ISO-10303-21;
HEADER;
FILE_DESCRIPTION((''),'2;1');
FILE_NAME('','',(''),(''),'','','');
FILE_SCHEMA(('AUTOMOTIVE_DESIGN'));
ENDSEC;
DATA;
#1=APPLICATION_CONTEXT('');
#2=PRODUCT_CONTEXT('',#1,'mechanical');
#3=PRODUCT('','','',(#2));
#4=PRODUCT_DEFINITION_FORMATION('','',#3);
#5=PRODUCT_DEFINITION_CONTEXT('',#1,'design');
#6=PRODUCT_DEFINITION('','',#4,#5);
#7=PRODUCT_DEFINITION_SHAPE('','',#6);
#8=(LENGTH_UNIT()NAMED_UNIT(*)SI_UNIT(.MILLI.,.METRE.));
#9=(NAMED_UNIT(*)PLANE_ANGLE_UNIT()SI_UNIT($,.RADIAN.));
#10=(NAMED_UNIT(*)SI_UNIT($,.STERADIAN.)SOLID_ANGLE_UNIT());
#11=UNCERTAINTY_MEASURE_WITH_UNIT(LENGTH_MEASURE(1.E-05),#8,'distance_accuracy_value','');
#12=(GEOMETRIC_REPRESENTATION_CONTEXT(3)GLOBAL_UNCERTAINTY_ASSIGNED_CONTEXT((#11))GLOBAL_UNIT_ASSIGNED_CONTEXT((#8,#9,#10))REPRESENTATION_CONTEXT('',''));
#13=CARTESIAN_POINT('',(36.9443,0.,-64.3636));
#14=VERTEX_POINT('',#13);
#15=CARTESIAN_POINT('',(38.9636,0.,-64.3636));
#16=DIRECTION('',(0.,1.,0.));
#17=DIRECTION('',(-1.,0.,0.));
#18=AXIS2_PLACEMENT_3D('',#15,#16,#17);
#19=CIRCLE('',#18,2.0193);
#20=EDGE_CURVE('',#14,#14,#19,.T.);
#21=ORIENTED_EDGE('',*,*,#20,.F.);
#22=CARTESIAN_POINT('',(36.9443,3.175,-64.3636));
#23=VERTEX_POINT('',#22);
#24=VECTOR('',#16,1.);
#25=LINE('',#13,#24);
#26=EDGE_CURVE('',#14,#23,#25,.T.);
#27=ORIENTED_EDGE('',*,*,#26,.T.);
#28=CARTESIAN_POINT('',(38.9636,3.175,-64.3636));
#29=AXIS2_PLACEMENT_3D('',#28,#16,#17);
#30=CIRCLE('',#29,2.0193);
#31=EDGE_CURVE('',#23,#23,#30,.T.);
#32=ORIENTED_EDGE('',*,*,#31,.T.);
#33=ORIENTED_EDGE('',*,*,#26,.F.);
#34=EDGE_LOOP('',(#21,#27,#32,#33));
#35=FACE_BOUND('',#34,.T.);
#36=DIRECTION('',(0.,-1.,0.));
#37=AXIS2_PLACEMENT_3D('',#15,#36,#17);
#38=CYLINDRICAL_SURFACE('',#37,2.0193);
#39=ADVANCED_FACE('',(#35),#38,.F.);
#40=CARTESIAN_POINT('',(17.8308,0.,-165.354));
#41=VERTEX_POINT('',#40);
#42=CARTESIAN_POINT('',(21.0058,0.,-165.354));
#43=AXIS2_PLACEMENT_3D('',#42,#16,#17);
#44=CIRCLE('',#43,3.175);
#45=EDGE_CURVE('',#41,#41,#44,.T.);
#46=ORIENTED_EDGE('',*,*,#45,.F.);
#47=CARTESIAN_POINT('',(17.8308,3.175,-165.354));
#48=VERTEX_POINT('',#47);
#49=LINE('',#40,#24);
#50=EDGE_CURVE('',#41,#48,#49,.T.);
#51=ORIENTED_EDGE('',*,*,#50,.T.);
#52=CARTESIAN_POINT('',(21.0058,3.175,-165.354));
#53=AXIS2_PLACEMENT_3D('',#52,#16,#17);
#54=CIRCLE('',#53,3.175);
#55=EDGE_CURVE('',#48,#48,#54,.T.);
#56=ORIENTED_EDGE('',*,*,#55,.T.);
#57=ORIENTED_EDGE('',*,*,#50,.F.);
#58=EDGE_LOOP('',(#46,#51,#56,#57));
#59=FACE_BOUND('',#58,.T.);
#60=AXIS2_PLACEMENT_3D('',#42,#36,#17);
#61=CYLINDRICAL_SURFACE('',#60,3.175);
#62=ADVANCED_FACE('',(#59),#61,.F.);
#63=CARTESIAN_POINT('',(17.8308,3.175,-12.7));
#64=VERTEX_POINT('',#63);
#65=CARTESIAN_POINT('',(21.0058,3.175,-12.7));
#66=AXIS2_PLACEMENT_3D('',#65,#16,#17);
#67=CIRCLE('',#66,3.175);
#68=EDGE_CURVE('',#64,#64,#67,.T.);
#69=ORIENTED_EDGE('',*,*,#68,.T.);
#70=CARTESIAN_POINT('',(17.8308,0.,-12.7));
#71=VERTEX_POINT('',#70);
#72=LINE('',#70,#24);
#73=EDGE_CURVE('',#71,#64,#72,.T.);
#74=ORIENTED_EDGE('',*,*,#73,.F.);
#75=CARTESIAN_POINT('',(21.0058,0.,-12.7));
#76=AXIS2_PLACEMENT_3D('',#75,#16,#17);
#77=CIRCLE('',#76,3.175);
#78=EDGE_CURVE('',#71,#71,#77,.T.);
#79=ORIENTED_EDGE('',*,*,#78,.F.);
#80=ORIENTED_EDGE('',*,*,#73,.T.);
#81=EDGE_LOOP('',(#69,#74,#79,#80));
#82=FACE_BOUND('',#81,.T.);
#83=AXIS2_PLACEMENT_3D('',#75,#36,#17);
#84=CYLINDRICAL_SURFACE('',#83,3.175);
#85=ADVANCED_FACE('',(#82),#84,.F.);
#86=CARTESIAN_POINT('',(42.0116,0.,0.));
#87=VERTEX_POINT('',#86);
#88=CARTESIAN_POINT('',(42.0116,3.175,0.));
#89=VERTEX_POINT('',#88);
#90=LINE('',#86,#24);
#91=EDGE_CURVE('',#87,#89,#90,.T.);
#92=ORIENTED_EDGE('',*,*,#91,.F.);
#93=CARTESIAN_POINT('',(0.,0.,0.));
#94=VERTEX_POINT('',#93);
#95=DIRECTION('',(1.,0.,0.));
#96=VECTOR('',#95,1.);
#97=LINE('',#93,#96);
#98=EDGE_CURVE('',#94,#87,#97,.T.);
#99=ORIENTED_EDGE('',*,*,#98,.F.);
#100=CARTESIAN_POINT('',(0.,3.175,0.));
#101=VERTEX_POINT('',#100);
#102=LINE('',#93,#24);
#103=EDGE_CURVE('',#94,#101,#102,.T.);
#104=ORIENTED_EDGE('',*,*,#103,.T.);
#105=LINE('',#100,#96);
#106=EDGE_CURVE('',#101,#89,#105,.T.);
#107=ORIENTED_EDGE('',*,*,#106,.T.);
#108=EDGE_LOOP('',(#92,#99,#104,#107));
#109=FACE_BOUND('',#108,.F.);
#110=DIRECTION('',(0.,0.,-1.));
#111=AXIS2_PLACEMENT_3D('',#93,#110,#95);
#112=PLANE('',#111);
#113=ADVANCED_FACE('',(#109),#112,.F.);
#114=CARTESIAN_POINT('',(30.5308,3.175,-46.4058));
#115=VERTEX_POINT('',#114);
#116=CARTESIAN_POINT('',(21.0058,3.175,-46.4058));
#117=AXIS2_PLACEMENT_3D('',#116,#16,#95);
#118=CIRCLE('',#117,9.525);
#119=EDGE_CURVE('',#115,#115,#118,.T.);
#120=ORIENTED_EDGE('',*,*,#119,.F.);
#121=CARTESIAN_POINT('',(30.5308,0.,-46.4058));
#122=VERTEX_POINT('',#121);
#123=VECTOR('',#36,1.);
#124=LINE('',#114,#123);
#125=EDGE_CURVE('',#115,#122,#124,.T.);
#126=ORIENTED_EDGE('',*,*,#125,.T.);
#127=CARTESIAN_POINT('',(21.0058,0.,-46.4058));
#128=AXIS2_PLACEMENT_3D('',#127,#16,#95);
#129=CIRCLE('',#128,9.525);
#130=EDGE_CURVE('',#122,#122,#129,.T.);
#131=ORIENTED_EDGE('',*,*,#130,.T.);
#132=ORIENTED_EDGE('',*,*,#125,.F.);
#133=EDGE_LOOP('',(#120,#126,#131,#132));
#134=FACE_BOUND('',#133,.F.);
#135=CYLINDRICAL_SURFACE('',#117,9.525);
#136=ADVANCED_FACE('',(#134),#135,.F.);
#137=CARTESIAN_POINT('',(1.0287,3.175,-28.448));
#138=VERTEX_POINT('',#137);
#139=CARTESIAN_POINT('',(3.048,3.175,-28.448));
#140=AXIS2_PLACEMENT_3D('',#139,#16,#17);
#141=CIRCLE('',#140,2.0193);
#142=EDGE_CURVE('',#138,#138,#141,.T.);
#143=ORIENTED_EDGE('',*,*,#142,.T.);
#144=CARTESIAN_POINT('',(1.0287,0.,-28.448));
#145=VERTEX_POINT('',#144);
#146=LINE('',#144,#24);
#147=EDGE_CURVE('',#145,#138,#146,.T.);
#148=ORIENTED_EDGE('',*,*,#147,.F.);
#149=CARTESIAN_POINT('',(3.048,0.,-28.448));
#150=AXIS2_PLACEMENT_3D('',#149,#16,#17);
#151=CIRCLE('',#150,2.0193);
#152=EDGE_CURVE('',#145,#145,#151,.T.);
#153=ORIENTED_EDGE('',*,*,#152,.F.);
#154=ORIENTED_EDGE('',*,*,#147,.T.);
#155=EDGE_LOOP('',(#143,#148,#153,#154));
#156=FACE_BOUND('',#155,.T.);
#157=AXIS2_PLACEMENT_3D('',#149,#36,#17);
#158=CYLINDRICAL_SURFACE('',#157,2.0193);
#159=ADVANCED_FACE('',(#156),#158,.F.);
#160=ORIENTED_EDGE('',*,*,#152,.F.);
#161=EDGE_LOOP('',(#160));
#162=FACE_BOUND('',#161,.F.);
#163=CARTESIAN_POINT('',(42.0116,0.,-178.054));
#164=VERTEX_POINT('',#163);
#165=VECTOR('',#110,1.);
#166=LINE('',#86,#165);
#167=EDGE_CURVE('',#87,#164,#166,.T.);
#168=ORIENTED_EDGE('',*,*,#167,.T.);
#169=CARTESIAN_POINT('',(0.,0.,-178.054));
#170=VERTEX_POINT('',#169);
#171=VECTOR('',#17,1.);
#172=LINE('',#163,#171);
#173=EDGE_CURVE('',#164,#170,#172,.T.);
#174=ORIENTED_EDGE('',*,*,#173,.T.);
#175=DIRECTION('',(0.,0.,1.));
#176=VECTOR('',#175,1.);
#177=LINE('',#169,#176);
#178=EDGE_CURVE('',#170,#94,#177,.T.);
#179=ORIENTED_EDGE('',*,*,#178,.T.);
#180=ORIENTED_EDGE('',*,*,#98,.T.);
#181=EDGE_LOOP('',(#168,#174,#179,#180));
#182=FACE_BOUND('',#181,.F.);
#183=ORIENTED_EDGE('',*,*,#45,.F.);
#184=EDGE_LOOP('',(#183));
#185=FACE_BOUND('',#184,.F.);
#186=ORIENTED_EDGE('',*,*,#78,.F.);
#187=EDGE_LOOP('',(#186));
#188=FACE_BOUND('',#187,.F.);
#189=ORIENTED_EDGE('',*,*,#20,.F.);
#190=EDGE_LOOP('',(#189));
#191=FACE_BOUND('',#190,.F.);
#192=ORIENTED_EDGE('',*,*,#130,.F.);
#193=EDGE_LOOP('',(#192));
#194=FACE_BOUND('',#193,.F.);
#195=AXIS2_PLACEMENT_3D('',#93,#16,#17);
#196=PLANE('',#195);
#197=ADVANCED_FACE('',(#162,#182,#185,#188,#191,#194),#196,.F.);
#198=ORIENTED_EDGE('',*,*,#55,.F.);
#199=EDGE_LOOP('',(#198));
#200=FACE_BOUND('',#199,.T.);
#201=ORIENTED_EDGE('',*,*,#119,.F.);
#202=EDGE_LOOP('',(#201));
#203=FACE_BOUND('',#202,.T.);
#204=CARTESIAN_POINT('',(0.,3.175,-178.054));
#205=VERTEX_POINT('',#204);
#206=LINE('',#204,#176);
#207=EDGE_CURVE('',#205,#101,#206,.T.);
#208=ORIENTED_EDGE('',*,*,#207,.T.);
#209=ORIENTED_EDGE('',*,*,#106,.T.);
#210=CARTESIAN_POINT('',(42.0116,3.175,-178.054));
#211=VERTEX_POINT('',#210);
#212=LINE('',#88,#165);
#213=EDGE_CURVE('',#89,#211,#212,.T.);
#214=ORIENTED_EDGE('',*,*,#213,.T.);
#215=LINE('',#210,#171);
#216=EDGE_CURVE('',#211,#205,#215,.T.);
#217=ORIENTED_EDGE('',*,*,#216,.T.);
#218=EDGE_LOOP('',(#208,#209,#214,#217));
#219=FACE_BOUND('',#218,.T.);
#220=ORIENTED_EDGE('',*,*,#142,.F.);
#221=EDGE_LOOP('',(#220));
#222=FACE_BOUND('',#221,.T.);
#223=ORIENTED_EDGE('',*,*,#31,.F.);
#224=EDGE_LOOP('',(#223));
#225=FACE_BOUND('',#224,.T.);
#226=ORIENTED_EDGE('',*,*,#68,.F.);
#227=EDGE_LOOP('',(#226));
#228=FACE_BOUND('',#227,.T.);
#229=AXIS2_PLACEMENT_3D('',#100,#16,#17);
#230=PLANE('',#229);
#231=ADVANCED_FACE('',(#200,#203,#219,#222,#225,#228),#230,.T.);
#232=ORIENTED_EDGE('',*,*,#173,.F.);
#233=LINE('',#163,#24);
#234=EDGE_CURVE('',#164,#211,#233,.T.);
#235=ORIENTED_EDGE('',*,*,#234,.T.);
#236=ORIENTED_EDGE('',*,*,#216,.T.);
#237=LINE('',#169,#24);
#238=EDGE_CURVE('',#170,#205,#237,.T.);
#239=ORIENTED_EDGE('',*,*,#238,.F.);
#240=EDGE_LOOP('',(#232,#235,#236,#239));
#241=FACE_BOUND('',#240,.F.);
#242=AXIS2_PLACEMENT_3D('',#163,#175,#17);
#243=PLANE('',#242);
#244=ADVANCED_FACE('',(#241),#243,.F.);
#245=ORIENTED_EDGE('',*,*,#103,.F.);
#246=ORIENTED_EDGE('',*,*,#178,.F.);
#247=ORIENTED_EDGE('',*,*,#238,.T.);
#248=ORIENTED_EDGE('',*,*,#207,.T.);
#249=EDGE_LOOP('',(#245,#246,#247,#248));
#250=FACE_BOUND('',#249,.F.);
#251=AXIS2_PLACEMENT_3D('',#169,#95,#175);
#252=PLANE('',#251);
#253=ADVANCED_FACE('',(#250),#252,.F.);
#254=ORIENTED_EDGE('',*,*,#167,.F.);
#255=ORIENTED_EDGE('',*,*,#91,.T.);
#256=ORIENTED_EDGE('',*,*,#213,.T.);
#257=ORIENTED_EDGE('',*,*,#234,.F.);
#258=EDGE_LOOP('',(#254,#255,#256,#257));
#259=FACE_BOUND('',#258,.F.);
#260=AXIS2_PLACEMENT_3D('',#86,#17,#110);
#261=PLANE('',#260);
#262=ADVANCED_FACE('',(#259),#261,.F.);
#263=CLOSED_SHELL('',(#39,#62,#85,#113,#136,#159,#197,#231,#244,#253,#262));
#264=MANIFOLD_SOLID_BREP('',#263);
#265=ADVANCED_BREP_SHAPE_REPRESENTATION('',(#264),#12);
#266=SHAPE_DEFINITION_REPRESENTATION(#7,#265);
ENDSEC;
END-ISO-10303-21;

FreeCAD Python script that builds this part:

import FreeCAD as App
import Part
import Sketcher
from FreeCAD import Vector
Q = App.Units.Quantity

doc = App.newDocument("Part")
body = doc.addObject("PartDesign::Body", "Body")

sketch1 = body.newObject("Sketcher::SketchObject", "Sketch")
sketch1.AttachmentSupport = (doc.getObject("XZ_Plane"), [""])
sketch1.MapMode = "FlatFace"
sketch1.addGeometry(Part.LineSegment(Vector(0, -178.054, 0), Vector(0, 0, 0)), False)
sketch1.addGeometry(Part.LineSegment(Vector(0, 0, 0), Vector(42.0116, 0, 0)), False)
sketch1.addGeometry(Part.LineSegment(Vector(42.0116, 0, 0), Vector(42.0116, -178.054, 0)), False)
sketch1.addGeometry(Part.LineSegment(Vector(42.0116, -178.054, 0), Vector(0, -178.054, 0)), False)
sketch1.addGeometry(Part.Circle(Vector(21.0058, -165.354, 0), Vector(0, 0, 1), 3.175), False)
sketch1.addGeometry(Part.Circle(Vector(38.9636, -64.3636, 0), Vector(0, 0, 1), 2.0193), False)
sketch1.addGeometry(Part.Circle(Vector(21.0058, -12.7, 0), Vector(0, 0, 1), 3.175), False)
sketch1.addGeometry(Part.Circle(Vector(3.048, -28.448, 0), Vector(0, 0, 1), 2.0193), False)
sketch1.addConstraint(Sketcher.Constraint("Coincident", 0, 2, 1, 1))
sketch1.addConstraint(Sketcher.Constraint("Coincident", 1, 2, 2, 1))
sketch1.addConstraint(Sketcher.Constraint("Coincident", 2, 2, 3, 1))
sketch1.addConstraint(Sketcher.Constraint("Coincident", 3, 2, 0, 1))
sketch1.addConstraint(Sketcher.Constraint("Vertical", 0))
sketch1.addConstraint(Sketcher.Constraint("Horizontal", 1))
sketch1.addConstraint(Sketcher.Constraint("Vertical", 2))
sketch1.addConstraint(Sketcher.Constraint("Horizontal", 3))
sketch1.addConstraint(Sketcher.Constraint("Coincident", 0, 2, -1, 1))
sketch1.addConstraint(Sketcher.Constraint("Equal", 4, 6))
sketch1.addConstraint(Sketcher.Constraint("Equal", 5, 7))
sketch1.addConstraint(Sketcher.Constraint("Vertical", 4, 3, 6, 3))
sketch1.addConstraint(Sketcher.Constraint("Diameter", 4, Q("0.25 in")))
sketch1.addConstraint(Sketcher.Constraint("Diameter", 5, Q("0.159 in")))
sketch1.addConstraint(Sketcher.Constraint("DistanceY", 0, 1, 0, 2, Q("7.01 in")))
sketch1.addConstraint(Sketcher.Constraint("DistanceY", 6, 3, -1, 1, Q("0.5 in")))
sketch1.addConstraint(Sketcher.Constraint("DistanceY", 2, 2, 4, 3, Q("0.5 in")))
sketch1.addConstraint(Sketcher.Constraint("DistanceX", 1, 1, 1, 2, Q("1.654 in")))
sketch1.addConstraint(Sketcher.Constraint("DistanceX", -1, 1, 7, 3, Q("0.12 in")))
sketch1.addConstraint(Sketcher.Constraint("DistanceY", 7, 3, -1, 1, Q("1.12 in")))
sketch1.addConstraint(Sketcher.Constraint("DistanceX", 5, 3, 1, 2, Q("0.12 in")))
sketch1.addConstraint(Sketcher.Constraint("DistanceX", -1, 1, 4, 3, Q("0.827 in")))
sketch1.addConstraint(Sketcher.Constraint("DistanceY", 5, 3, -1, 1, Q("2.534 in")))
pad1 = body.newObject("PartDesign::Pad", "Pad")
pad1.Profile = sketch1
pad1.Length = Q("0.125 in")
pad1.Reversed = True

sketch2 = body.newObject("Sketcher::SketchObject", "Sketch001")
sketch2.AttachmentSupport = (doc.getObject("XZ_Plane"), [""])
sketch2.MapMode = "FlatFace"
sketch2.AttachmentOffset = App.Placement(Vector(0, 0, -0.125 * 25.4), App.Rotation())
sketch2.addGeometry(Part.Circle(Vector(21.0058, -46.4058, 0), Vector(0, 0, 1), 9.525), False)
sketch2.addConstraint(Sketcher.Constraint("Diameter", 0, Q("0.75 in")))
sketch2.addConstraint(Sketcher.Constraint("DistanceX", -1, 1, 0, 3, Q("0.827 in")))
sketch2.addConstraint(Sketcher.Constraint("DistanceY", 0, 3, -1, 1, Q("1.827 in")))
pocket1 = body.newObject("PartDesign::Pocket", "Pocket")
pocket1.Profile = sketch2
pocket1.Length = Q("0.3125 in")
pocket1.Reversed = True

doc.recompute()
